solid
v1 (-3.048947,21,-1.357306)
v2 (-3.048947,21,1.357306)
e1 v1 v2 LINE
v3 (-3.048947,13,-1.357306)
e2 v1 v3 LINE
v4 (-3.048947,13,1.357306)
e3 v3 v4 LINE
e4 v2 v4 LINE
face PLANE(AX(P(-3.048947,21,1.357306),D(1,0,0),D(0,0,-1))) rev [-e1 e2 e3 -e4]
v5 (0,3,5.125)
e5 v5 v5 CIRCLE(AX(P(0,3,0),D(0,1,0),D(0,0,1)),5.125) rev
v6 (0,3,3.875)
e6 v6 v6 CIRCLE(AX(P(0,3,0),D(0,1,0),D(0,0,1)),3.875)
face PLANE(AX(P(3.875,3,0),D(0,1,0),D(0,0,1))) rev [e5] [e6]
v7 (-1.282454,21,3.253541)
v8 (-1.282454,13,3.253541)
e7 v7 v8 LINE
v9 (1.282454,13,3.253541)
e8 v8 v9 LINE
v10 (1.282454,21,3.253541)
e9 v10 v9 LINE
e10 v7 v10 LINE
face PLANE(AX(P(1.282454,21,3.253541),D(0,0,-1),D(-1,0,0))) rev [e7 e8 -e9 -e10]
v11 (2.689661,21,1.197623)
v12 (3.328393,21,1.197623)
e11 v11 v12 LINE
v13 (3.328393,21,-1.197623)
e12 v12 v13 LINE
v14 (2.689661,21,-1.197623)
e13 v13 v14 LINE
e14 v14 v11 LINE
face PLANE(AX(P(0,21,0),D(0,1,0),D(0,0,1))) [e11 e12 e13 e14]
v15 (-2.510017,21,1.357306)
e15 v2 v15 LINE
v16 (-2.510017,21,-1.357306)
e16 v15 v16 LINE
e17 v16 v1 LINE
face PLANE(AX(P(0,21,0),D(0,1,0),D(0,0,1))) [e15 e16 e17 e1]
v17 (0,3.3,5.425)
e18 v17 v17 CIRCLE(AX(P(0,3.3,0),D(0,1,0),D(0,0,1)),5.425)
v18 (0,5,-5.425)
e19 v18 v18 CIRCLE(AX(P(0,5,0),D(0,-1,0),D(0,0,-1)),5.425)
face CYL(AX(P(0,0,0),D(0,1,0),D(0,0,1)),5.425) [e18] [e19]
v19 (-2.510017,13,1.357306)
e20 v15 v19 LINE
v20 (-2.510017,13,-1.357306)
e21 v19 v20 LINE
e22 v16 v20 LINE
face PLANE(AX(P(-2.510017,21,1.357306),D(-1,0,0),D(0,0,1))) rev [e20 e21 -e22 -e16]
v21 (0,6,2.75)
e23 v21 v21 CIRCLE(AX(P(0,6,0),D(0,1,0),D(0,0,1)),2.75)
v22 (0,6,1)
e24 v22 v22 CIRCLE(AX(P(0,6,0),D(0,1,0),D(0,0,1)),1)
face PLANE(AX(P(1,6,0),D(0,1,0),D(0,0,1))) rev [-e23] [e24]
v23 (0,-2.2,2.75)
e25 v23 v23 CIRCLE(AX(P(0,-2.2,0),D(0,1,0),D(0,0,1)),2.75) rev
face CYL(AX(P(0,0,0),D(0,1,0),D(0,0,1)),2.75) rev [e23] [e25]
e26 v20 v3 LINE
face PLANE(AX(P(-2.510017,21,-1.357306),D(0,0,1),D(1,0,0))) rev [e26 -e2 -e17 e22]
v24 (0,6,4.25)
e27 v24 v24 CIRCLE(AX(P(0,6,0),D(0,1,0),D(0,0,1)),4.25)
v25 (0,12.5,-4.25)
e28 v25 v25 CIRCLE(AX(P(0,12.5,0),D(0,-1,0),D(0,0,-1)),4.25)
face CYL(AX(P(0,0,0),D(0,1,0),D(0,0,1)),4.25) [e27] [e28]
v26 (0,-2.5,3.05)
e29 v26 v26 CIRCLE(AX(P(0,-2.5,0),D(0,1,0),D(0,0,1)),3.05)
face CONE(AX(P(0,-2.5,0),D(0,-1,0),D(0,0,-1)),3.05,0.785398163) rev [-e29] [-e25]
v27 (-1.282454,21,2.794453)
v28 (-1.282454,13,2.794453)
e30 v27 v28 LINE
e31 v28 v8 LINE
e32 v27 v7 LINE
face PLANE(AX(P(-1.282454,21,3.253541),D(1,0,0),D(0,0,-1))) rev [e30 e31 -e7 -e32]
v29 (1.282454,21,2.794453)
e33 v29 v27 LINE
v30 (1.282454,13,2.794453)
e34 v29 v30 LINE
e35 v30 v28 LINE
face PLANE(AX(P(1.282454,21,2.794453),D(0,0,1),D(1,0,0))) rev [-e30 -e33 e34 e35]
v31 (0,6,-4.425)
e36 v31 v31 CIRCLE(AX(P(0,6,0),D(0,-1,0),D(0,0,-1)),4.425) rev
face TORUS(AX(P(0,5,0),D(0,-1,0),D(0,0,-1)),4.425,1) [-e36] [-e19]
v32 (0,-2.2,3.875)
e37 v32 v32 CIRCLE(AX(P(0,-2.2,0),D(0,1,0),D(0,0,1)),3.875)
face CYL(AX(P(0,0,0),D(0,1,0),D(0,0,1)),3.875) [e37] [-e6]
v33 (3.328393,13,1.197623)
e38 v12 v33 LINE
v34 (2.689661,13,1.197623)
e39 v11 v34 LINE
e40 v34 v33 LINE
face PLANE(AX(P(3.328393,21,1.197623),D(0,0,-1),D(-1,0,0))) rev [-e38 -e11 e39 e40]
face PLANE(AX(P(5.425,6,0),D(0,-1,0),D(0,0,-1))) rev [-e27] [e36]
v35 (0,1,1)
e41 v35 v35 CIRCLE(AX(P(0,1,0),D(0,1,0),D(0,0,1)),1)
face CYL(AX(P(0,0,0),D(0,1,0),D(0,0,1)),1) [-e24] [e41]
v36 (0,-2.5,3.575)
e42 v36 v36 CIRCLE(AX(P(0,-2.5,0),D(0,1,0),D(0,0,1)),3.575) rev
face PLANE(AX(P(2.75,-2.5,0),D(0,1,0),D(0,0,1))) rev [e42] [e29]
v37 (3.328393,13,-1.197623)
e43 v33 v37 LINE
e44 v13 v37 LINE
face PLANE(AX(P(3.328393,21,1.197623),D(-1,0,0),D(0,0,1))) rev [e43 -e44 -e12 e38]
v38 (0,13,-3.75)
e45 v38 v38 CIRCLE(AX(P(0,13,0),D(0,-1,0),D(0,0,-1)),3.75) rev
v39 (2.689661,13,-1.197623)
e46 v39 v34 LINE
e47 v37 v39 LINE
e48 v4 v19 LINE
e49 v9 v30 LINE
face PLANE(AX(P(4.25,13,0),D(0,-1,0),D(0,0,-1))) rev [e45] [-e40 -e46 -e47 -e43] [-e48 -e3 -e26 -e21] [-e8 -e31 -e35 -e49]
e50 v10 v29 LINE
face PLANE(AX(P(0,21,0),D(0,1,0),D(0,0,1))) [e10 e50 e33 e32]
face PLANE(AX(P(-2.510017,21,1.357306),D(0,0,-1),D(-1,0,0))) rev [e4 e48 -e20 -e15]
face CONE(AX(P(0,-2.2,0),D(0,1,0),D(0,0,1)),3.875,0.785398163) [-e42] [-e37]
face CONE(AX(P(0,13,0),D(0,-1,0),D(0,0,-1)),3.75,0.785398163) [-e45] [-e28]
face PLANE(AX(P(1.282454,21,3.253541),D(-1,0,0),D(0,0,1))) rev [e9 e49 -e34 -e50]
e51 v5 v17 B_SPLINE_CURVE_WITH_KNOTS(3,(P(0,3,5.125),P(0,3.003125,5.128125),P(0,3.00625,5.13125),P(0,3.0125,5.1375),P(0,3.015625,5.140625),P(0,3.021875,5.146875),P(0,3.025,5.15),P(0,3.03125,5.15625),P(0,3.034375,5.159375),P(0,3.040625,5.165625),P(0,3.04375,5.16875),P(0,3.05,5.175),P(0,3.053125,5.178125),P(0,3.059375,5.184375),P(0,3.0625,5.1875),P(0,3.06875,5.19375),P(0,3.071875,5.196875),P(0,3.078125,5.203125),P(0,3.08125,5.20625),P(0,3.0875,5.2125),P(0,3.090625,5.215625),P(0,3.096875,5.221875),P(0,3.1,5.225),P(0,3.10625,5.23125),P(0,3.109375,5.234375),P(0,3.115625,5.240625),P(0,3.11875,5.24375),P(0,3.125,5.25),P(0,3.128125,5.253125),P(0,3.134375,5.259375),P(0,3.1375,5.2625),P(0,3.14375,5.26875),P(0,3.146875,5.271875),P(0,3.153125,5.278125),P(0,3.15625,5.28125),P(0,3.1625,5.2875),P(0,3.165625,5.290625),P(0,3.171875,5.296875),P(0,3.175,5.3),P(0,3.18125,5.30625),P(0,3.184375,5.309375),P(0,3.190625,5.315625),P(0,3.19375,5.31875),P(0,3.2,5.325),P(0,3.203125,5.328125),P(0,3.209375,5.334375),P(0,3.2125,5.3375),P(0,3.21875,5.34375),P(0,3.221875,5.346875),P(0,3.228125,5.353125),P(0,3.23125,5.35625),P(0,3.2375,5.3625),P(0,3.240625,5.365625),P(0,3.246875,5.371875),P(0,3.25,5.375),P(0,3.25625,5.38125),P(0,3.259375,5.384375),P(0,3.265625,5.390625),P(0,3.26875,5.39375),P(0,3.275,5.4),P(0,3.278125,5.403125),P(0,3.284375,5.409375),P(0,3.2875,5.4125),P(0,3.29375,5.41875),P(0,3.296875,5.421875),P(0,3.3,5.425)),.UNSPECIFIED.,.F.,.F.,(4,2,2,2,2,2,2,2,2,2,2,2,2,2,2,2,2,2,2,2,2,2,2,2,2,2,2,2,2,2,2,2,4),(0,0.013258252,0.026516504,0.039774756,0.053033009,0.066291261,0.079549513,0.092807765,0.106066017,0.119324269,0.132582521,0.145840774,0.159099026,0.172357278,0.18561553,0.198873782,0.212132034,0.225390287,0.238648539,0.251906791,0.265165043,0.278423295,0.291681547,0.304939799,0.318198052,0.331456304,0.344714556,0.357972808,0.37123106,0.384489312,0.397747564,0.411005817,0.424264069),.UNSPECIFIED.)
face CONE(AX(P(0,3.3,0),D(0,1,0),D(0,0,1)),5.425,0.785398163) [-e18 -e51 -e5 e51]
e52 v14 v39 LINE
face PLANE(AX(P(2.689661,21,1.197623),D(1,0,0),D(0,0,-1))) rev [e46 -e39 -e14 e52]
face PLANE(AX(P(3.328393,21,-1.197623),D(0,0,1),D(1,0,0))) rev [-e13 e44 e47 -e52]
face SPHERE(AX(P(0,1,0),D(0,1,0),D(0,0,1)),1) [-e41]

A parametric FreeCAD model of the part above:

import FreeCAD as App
import Part
import Sketcher
Q = App.Units.Quantity


def edges_at(feature, points):
    """Names of the edges that pass closest to the given points."""
    edges = feature.Shape.Edges
    near = lambda p: min(range(len(edges)), key=lambda i: edges[i].distToShape(Part.Vertex(*p))[0])
    return sorted({f"Edge{near(p) + 1}" for p in points})

doc = App.newDocument("Part")
body = doc.addObject("PartDesign::Body", "Body")

# Sketch on XY plane
sketch1 = body.newObject("Sketcher::SketchObject", "Sketch")
sketch1.AttachmentSupport = (doc.getObject("XY_Plane"), [""])
sketch1.MapMode = "FlatFace"
sketch1.addGeometry(Part.LineSegment(App.Vector(0, 0, 0), App.Vector(1, 0, 0)), False)
sketch1.addGeometry(Part.LineSegment(App.Vector(1, 0, 0), App.Vector(1, 6, 0)), False)
sketch1.addGeometry(Part.LineSegment(App.Vector(1, 6, 0), App.Vector(2.8, 6, 0)), False)
sketch1.addGeometry(Part.LineSegment(App.Vector(2.8, 6, 0), App.Vector(2.8, -2.5, 0)), False)
sketch1.addGeometry(Part.LineSegment(App.Vector(2.8, -2.5, 0), App.Vector(3.9, -2.5, 0)), False)
sketch1.addGeometry(Part.LineSegment(App.Vector(3.9, -2.5, 0), App.Vector(3.9, 3, 0)), False)
sketch1.addGeometry(Part.LineSegment(App.Vector(3.9, 3, 0), App.Vector(5.4, 3, 0)), False)
sketch1.addGeometry(Part.LineSegment(App.Vector(5.4, 3, 0), App.Vector(5.4, 6, 0)), False)
sketch1.addGeometry(Part.LineSegment(App.Vector(5.4, 6, 0), App.Vector(4.2, 6, 0)), False)
sketch1.addGeometry(Part.LineSegment(App.Vector(4.2, 6, 0), App.Vector(4.2, 13, 0)), False)
sketch1.addGeometry(Part.LineSegment(App.Vector(4.2, 13, 0), App.Vector(0, 13, 0)), False)
sketch1.addGeometry(Part.LineSegment(App.Vector(0, 13, 0), App.Vector(0, 0, 0)), False)
sketch1.addConstraint(Sketcher.Constraint("Coincident", 0, 2, 1, 1))
sketch1.addConstraint(Sketcher.Constraint("Coincident", 1, 2, 2, 1))
sketch1.addConstraint(Sketcher.Constraint("Coincident", 2, 2, 3, 1))
sketch1.addConstraint(Sketcher.Constraint("Coincident", 3, 2, 4, 1))
sketch1.addConstraint(Sketcher.Constraint("Coincident", 4, 2, 5, 1))
sketch1.addConstraint(Sketcher.Constraint("Coincident", 5, 2, 6, 1))
sketch1.addConstraint(Sketcher.Constraint("Coincident", 6, 2, 7, 1))
sketch1.addConstraint(Sketcher.Constraint("Coincident", 7, 2, 8, 1))
sketch1.addConstraint(Sketcher.Constraint("Coincident", 8, 2, 9, 1))
sketch1.addConstraint(Sketcher.Constraint("Coincident", 9, 2, 10, 1))
sketch1.addConstraint(Sketcher.Constraint("Coincident", 10, 2, 11, 1))
sketch1.addConstraint(Sketcher.Constraint("Coincident", 11, 2, 0, 1))
sketch1.addConstraint(Sketcher.Constraint("Horizontal", 0))
sketch1.addConstraint(Sketcher.Constraint("Vertical", 1))
sketch1.addConstraint(Sketcher.Constraint("Horizontal", 2))
sketch1.addConstraint(Sketcher.Constraint("Vertical", 3))
sketch1.addConstraint(Sketcher.Constraint("Horizontal", 4))
sketch1.addConstraint(Sketcher.Constraint("Vertical", 5))
sketch1.addConstraint(Sketcher.Constraint("Horizontal", 6))
sketch1.addConstraint(Sketcher.Constraint("Vertical", 7))
sketch1.addConstraint(Sketcher.Constraint("Horizontal", 8))
sketch1.addConstraint(Sketcher.Constraint("Vertical", 9))
sketch1.addConstraint(Sketcher.Constraint("Horizontal", 10))
sketch1.addConstraint(Sketcher.Constraint("Vertical", 11))
sketch1.addConstraint(Sketcher.Constraint("Coincident", 11, 2, -1, 1))
sketch1.addConstraint(Sketcher.Constraint("Horizontal", 2, 2, 7, 2))
sketch1.addConstraint(Sketcher.Constraint("DistanceX", 0, 1, 0, 2, Q("1 mm")))
sketch1.addConstraint(Sketcher.Constraint("DistanceY", 1, 1, 1, 2, Q("6 mm")))
sketch1.addConstraint(Sketcher.Constraint("DistanceY", 7, 1, 7, 2, Q("3 mm")))
sketch1.addConstraint(Sketcher.Constraint("DistanceY", 9, 1, 9, 2, Q("7 mm")))
sketch1.addConstraint(Sketcher.Constraint("DistanceY", 3, 2, 3, 1, Q("8.5 mm")))
sketch1.addConstraint(Sketcher.Constraint("DistanceX", 2, 1, 2, 2, Q("1.75 mm")))
sketch1.addConstraint(Sketcher.Constraint("DistanceX", 6, 1, 6, 2, Q("1.55 mm")))
sketch1.addConstraint(Sketcher.Constraint("DistanceX", 10, 2, 10, 1, Q("4.25 mm")))
sketch1.addConstraint(Sketcher.Constraint("DistanceX", 4, 1, 4, 2, Q("1.125 mm")))
revolution = body.newObject("PartDesign::Revolution", "Revolution")
revolution.Profile = sketch1
revolution.ReferenceAxis = (sketch1, ["V_Axis"])
revolution.Angle = 360
doc.recompute()

fillet = body.newObject("PartDesign::Fillet", "Fillet")
fillet.Base = (revolution, edges_at(revolution, [(0, 0, -1)]))
fillet.Radius = 1
doc.recompute()

fillet2 = body.newObject("PartDesign::Fillet", "Fillet001")
fillet2.Base = (fillet, edges_at(fillet, [(0, 6, -5.425)]))
fillet2.Radius = 1
doc.recompute()

chamfer = body.newObject("PartDesign::Chamfer", "Chamfer")
chamfer.Base = (fillet2, edges_at(fillet2, [(0, 3, -5.425), (0, -2.5, -3.875), (0, -2.5, -2.75)]))
chamfer.Size = 0.3
doc.recompute()

chamfer2 = body.newObject("PartDesign::Chamfer", "Chamfer001")
chamfer2.Base = (chamfer, edges_at(chamfer, [(0, 13, -4.25)]))
chamfer2.Size = 0.5

# Sketch on XZ plane
sketch2 = body.newObject("Sketcher::SketchObject", "Sketch001")
sketch2.AttachmentSupport = (doc.getObject("XZ_Plane"), [""])
sketch2.MapMode = "FlatFace"
sketch2.AttachmentOffset = App.Placement(App.Vector(0, 0, -13), App.Rotation())
sketch2.addGeometry(Part.LineSegment(App.Vector(-1.28, 2.79, 0), App.Vector(-1.28, 3.25, 0)), False)
sketch2.addGeometry(Part.LineSegment(App.Vector(-1.28, 3.25, 0), App.Vector(1.28, 3.25, 0)), False)
sketch2.addGeometry(Part.LineSegment(App.Vector(1.28, 3.25, 0), App.Vector(1.28, 2.79, 0)), False)
sketch2.addGeometry(Part.LineSegment(App.Vector(1.28, 2.79, 0), App.Vector(-1.28, 2.79, 0)), False)
sketch2.addGeometry(Part.LineSegment(App.Vector(2.69, -1.2, 0), App.Vector(2.69, 1.2, 0)), False)
sketch2.addGeometry(Part.LineSegment(App.Vector(2.69, 1.2, 0), App.Vector(3.33, 1.2, 0)), False)
sketch2.addGeometry(Part.LineSegment(App.Vector(3.33, 1.2, 0), App.Vector(3.33, -1.2, 0)), False)
sketch2.addGeometry(Part.LineSegment(App.Vector(3.33, -1.2, 0), App.Vector(2.69, -1.2, 0)), False)
sketch2.addGeometry(Part.LineSegment(App.Vector(-3.05, -1.36, 0), App.Vector(-3.05, 1.36, 0)), False)
sketch2.addGeometry(Part.LineSegment(App.Vector(-3.05, 1.36, 0), App.Vector(-2.51, 1.36, 0)), False)
sketch2.addGeometry(Part.LineSegment(App.Vector(-2.51, 1.36, 0), App.Vector(-2.51, -1.36, 0)), False)
sketch2.addGeometry(Part.LineSegment(App.Vector(-2.51, -1.36, 0), App.Vector(-3.05, -1.36, 0)), False)
sketch2.addConstraint(Sketcher.Constraint("Coincident", 0, 2, 1, 1))
sketch2.addConstraint(Sketcher.Constraint("Coincident", 1, 2, 2, 1))
sketch2.addConstraint(Sketcher.Constraint("Coincident", 2, 2, 3, 1))
sketch2.addConstraint(Sketcher.Constraint("Coincident", 3, 2, 0, 1))
sketch2.addConstraint(Sketcher.Constraint("Coincident", 4, 2, 5, 1))
sketch2.addConstraint(Sketcher.Constraint("Coincident", 5, 2, 6, 1))
sketch2.addConstraint(Sketcher.Constraint("Coincident", 6, 2, 7, 1))
sketch2.addConstraint(Sketcher.Constraint("Coincident", 7, 2, 4, 1))
sketch2.addConstraint(Sketcher.Constraint("Coincident", 8, 2, 9, 1))
sketch2.addConstraint(Sketcher.Constraint("Coincident", 9, 2, 10, 1))
sketch2.addConstraint(Sketcher.Constraint("Coincident", 10, 2, 11, 1))
sketch2.addConstraint(Sketcher.Constraint("Coincident", 11, 2, 8, 1))
sketch2.addConstraint(Sketcher.Constraint("Vertical", 0))
sketch2.addConstraint(Sketcher.Constraint("Horizontal", 1))
sketch2.addConstraint(Sketcher.Constraint("Vertical", 2))
sketch2.addConstraint(Sketcher.Constraint("Horizontal", 3))
sketch2.addConstraint(Sketcher.Constraint("Vertical", 4))
sketch2.addConstraint(Sketcher.Constraint("Horizontal", 5))
sketch2.addConstraint(Sketcher.Constraint("Vertical", 6))
sketch2.addConstraint(Sketcher.Constraint("Horizontal", 7))
sketch2.addConstraint(Sketcher.Constraint("Vertical", 8))
sketch2.addConstraint(Sketcher.Constraint("Horizontal", 9))
sketch2.addConstraint(Sketcher.Constraint("Vertical", 10))
sketch2.addConstraint(Sketcher.Constraint("Horizontal", 11))
sketch2.addConstraint(Sketcher.Constraint("DistanceX", 1, 1, 1, 2, Q("2.564908 mm")))
sketch2.addConstraint(Sketcher.Constraint("DistanceX", 9, 1, 9, 2, Q("0.53893 mm")))
sketch2.addConstraint(Sketcher.Constraint("DistanceY", 0, 1, 0, 2, Q("0.459089 mm")))
sketch2.addConstraint(Sketcher.Constraint("DistanceY", 8, 1, 8, 2, Q("2.714611 mm")))
sketch2.addConstraint(Sketcher.Constraint("DistanceX", 8, 2, 2, 2, Q("4.331401 mm")))
sketch2.addConstraint(Sketcher.Constraint("DistanceX", 5, 1, 5, 2, Q("0.638732 mm")))
sketch2.addConstraint(Sketcher.Constraint("DistanceY", 4, 1, 4, 2, Q("2.395245 mm")))
sketch2.addConstraint(Sketcher.Constraint("DistanceY", -1, 1, 0, 2, Q("3.253541 mm")))
sketch2.addConstraint(Sketcher.Constraint("DistanceX", -1, 1, 4, 2, Q("2.689661 mm")))
sketch2.addConstraint(Sketcher.Constraint("DistanceY", 4, 2, 2, 2, Q("1.59683 mm")))
sketch2.addConstraint(Sketcher.Constraint("DistanceX", 2, 2, 5, 2, Q("2.045938 mm")))
sketch2.addConstraint(Sketcher.Constraint("DistanceY", 10, 2, 3, 2, Q("4.151758 mm")))
pad1 = body.newObject("PartDesign::Pad", "Pad")
pad1.Profile = sketch2
pad1.Length = 8
pad1.Reversed = True

doc.recompute()
